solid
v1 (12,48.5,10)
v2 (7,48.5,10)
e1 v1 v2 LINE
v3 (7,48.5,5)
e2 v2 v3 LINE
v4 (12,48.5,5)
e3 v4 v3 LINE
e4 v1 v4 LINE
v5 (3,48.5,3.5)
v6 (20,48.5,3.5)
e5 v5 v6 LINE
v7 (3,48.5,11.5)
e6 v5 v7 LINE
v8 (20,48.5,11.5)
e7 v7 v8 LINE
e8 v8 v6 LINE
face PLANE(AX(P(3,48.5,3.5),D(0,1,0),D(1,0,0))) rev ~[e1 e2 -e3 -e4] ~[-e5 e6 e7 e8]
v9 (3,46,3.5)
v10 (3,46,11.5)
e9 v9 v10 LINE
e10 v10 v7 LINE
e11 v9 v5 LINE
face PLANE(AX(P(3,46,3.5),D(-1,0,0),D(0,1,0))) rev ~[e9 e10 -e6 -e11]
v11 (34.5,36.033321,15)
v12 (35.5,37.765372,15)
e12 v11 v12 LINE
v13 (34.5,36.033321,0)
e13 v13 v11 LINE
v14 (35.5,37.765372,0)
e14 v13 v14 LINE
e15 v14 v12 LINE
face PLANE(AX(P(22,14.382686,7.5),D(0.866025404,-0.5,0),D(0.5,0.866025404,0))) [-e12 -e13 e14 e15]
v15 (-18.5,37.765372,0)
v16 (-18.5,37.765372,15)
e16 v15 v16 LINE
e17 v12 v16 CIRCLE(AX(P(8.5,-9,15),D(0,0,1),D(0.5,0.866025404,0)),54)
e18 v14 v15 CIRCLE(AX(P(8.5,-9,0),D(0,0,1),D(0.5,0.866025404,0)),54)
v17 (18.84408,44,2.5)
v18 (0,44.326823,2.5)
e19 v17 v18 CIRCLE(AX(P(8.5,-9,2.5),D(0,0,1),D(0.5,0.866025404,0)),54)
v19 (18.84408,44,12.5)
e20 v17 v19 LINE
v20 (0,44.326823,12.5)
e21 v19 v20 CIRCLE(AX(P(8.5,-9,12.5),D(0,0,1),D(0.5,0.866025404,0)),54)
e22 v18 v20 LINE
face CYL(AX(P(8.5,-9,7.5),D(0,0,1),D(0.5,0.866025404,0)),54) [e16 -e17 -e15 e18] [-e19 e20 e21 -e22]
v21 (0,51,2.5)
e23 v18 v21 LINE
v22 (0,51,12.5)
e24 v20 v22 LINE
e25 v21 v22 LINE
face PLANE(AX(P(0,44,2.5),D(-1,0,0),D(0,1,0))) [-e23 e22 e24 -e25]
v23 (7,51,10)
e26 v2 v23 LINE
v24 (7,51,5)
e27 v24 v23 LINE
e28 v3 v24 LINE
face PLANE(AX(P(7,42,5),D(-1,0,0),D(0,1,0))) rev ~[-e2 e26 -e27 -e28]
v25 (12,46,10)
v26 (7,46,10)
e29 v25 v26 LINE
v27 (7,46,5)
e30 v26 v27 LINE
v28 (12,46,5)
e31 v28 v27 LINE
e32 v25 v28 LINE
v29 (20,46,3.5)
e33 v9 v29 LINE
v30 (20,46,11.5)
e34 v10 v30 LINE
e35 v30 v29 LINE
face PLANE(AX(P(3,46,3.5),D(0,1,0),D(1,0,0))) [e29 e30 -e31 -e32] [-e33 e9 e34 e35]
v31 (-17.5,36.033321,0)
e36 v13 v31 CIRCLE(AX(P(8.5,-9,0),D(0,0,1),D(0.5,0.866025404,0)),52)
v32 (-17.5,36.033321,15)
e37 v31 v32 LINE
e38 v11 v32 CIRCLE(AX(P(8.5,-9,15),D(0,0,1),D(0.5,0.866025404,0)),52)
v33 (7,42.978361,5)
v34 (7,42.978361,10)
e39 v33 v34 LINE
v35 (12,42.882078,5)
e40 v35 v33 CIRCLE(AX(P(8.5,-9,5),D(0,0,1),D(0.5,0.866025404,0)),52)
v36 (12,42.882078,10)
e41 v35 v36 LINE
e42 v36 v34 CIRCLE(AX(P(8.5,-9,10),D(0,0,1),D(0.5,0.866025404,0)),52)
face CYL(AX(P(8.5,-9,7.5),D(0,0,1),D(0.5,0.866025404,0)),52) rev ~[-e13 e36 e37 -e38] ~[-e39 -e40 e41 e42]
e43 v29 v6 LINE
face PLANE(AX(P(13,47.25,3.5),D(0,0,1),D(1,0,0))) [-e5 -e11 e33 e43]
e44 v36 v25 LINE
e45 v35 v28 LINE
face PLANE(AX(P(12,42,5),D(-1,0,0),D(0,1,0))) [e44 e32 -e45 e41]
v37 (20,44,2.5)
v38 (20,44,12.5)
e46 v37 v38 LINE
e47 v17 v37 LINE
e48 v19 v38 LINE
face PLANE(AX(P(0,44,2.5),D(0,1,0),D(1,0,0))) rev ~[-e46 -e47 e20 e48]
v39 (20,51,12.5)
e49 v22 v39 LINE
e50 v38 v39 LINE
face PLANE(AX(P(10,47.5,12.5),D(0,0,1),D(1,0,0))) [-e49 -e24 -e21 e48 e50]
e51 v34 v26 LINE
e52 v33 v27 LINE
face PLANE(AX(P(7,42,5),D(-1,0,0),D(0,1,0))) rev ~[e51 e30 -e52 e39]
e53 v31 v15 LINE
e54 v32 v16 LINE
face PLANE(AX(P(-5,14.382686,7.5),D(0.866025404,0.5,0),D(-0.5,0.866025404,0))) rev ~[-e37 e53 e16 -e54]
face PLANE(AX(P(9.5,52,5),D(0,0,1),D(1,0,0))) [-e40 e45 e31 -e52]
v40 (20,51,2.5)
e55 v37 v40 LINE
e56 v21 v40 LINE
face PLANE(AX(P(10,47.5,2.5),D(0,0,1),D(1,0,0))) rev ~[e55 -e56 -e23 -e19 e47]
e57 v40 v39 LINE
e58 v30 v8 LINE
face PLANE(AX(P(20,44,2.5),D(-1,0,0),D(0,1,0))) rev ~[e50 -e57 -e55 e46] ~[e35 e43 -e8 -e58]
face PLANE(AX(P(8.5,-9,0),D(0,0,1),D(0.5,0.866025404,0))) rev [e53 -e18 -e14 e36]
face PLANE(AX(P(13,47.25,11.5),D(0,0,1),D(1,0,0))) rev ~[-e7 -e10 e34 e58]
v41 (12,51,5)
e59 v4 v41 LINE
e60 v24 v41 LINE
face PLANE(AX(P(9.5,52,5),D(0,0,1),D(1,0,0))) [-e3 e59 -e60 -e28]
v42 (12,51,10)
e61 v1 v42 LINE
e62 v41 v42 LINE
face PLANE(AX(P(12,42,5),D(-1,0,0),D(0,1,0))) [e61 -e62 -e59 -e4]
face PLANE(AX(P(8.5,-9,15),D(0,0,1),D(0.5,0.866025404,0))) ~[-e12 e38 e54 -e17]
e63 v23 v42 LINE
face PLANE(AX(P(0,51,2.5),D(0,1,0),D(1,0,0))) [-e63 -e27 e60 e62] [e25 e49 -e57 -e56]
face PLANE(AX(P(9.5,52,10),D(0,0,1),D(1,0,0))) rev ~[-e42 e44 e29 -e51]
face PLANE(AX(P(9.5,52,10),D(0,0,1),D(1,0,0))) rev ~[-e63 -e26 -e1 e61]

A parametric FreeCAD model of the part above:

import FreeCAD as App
import Part
import Sketcher


def add_polygon(sketch, points):
    """Adds a closed chain of lines whose ends are joined by coincident constraints."""
    first, n = sketch.GeometryCount, len(points)
    for a, b in zip(points, points[1:] + points[:1]):
        sketch.addGeometry(Part.LineSegment(App.Vector(*a, 0), App.Vector(*b, 0)), False)
    for i in range(n):
        sketch.addConstraint(Sketcher.Constraint("Coincident", first + i, 2, first + (i + 1) % n, 1))

doc = App.newDocument("Part")
body = doc.addObject("PartDesign::Body", "Body")

# Sketch on XY plane
sketch1 = body.newObject("Sketcher::SketchObject", "Sketch")
sketch1.AttachmentSupport = (doc.getObject("XY_Plane"), [""])
sketch1.MapMode = "FlatFace"
sketch1.AttachmentOffset = App.Placement(App.Vector(0, 0, 3.5), App.Rotation())
add_polygon(sketch1, [(3, 48.5), (3, 46), (23, 46), (23, 48.5)])  # lines 0-3
sketch1.addConstraint([
    Sketcher.Constraint("Vertical", 0),
    Sketcher.Constraint("Horizontal", 1),
    Sketcher.Constraint("Vertical", 2),
    Sketcher.Constraint("Horizontal", 3),
    Sketcher.Constraint("DistanceX", 1, 1, 1, 2, 20.0),
    Sketcher.Constraint("DistanceY", 0, 2, 0, 1, 2.5),
    Sketcher.Constraint("DistanceX", -1, 1, 0, 2, 3.0),
    Sketcher.Constraint("DistanceY", -1, 1, 0, 2, 46.0),
])
pad1 = body.newObject("PartDesign::Pad", "Pad")
pad1.Profile = sketch1
pad1.Length = 8
body2 = doc.addObject("PartDesign::Body", "Body001")

# Sketch on XY plane
sketch2 = body2.newObject("Sketcher::SketchObject", "Sketch001")
sketch2.AttachmentSupport = (doc.getObject("XY_Plane001"), [""])
sketch2.MapMode = "FlatFace"
sketch2.AttachmentOffset = App.Placement(App.Vector(0, 0, 5), App.Rotation())
add_polygon(sketch2, [(7, 62), (7, 42), (12, 42), (12, 62)])  # lines 0-3
sketch2.addConstraint([
    Sketcher.Constraint("Vertical", 0),
    Sketcher.Constraint("Horizontal", 1),
    Sketcher.Constraint("Vertical", 2),
    Sketcher.Constraint("Horizontal", 3),
    Sketcher.Constraint("DistanceX", 1, 1, 1, 2, 5.0),
    Sketcher.Constraint("DistanceY", 0, 2, 0, 1, 20.0),
    Sketcher.Constraint("DistanceX", -1, 1, 0, 2, 7.0),
    Sketcher.Constraint("DistanceY", -1, 1, 0, 2, 42.0),
])
pad2 = body2.newObject("PartDesign::Pad", "Pad001")
pad2.Profile = sketch2
pad2.Length = 5
body3 = doc.addObject("PartDesign::Body", "Body002")

# Sketch on XY plane
sketch3 = body3.newObject("Sketcher::SketchObject", "Sketch002")
sketch3.AttachmentSupport = (doc.getObject("XY_Plane002"), [""])
sketch3.MapMode = "FlatFace"
sketch3.AttachmentOffset = App.Placement(App.Vector(0, 0, 2.5), App.Rotation())
add_polygon(sketch3, [(0, 51), (0, 44), (20, 44), (20, 51)])  # lines 0-3
sketch3.addConstraint([
    Sketcher.Constraint("Vertical", 0),
    Sketcher.Constraint("Horizontal", 1),
    Sketcher.Constraint("Vertical", 2),
    Sketcher.Constraint("Horizontal", 3),
    Sketcher.Constraint("PointOnObject", 0, 2, -2),
    Sketcher.Constraint("DistanceX", 1, 1, 1, 2, 20.0),
    Sketcher.Constraint("DistanceY", 0, 2, 0, 1, 7.0),
    Sketcher.Constraint("DistanceY", -1, 1, 0, 2, 44.0),
])
pad3 = body3.newObject("PartDesign::Pad", "Pad002")
pad3.Profile = sketch3
pad3.Length = 10
body4 = doc.addObject("PartDesign::Body", "Body003")

# Sketch on XZ plane
sketch4 = body4.newObject("Sketcher::SketchObject", "Sketch003")
sketch4.AttachmentSupport = (doc.getObject("XZ_Plane003"), [""])
sketch4.MapMode = "FlatFace"
add_polygon(sketch4, [(0, 15), (0, 0), (52, 0), (52, 15)])  # lines 0-3
sketch4.addConstraint([
    Sketcher.Constraint("Vertical", 0),
    Sketcher.Constraint("Horizontal", 1),
    Sketcher.Constraint("Vertical", 2),
    Sketcher.Constraint("Horizontal", 3),
    Sketcher.Constraint("Coincident", 0, 2, -1, 1),
    Sketcher.Constraint("DistanceX", 1, 1, 1, 2, 52.0),
    Sketcher.Constraint("DistanceY", 0, 2, 0, 1, 15.0),
])
revolution = body4.newObject("PartDesign::Revolution", "Revolution")
revolution.Profile = sketch4
revolution.ReferenceAxis = (sketch4, ["V_Axis"])
revolution.Angle = 60
body5 = doc.addObject("PartDesign::Body", "Body004")
doc.recompute()

body4.Placement = App.Placement(App.Vector(8.5, -7, 0), App.Rotation(App.Vector(0, 0, 1), 60))
boolean = body5.newObject("PartDesign::Boolean", "Boolean")
boolean.Type = "Fuse"
boolean.addObjects([body4])
body6 = doc.addObject("PartDesign::Body", "Body005")

# Sketch on XZ plane
sketch5 = body6.newObject("Sketcher::SketchObject", "Sketch004")
sketch5.AttachmentSupport = (doc.getObject("XZ_Plane005"), [""])
sketch5.MapMode = "FlatFace"
add_polygon(sketch5, [(0, 15), (0, 0), (54, 0), (54, 15)])  # lines 0-3
sketch5.addConstraint([
    Sketcher.Constraint("Vertical", 0),
    Sketcher.Constraint("Horizontal", 1),
    Sketcher.Constraint("Vertical", 2),
    Sketcher.Constraint("Horizontal", 3),
    Sketcher.Constraint("Coincident", 0, 2, -1, 1),
    Sketcher.Constraint("DistanceX", 1, 1, 1, 2, 54.0),
    Sketcher.Constraint("DistanceY", 0, 2, 0, 1, 15.0),
])
revolution2 = body6.newObject("PartDesign::Revolution", "Revolution001")
revolution2.Profile = sketch5
revolution2.ReferenceAxis = (sketch5, ["V_Axis"])
revolution2.Angle = 60
body7 = doc.addObject("PartDesign::Body", "Body006")
doc.recompute()

body6.Placement = App.Placement(App.Vector(8.5, -7, 0), App.Rotation(App.Vector(0, 0, 1), 60))
boolean2 = body7.newObject("PartDesign::Boolean", "Boolean001")
boolean2.Type = "Fuse"
boolean2.addObjects([body6])
doc.recompute()

boolean3 = body7.newObject("PartDesign::Boolean", "Boolean002")
boolean3.Type = "Cut"
boolean3.addObjects([body5])
body8 = doc.addObject("PartDesign::Body", "Body007")
doc.recompute()

body7.Placement = App.Placement(App.Vector(0, -2, 0), App.Rotation(App.Vector(0, 0, 1), 0))
boolean4 = body8.newObject("PartDesign::Boolean", "Boolean003")
boolean4.Type = "Fuse"
boolean4.addObjects([body7])
doc.recompute()

body9 = doc.addObject("PartDesign::Body", "Body008")
body9.BaseFeature = body3
boolean5 = body8.newObject("PartDesign::Boolean", "Boolean004")
boolean5.Type = "Fuse"
boolean5.addObjects([body9])
doc.recompute()

boolean6 = body8.newObject("PartDesign::Boolean", "Boolean005")
boolean6.Type = "Fuse"
boolean6.addObjects([body3])
doc.recompute()

boolean7 = body8.newObject("PartDesign::Boolean", "Boolean006")
boolean7.Type = "Cut"
boolean7.addObjects([body2])
doc.recompute()

boolean8 = body8.newObject("PartDesign::Boolean", "Boolean007")
boolean8.Type = "Cut"
boolean8.addObjects([body])

doc.recompute()
